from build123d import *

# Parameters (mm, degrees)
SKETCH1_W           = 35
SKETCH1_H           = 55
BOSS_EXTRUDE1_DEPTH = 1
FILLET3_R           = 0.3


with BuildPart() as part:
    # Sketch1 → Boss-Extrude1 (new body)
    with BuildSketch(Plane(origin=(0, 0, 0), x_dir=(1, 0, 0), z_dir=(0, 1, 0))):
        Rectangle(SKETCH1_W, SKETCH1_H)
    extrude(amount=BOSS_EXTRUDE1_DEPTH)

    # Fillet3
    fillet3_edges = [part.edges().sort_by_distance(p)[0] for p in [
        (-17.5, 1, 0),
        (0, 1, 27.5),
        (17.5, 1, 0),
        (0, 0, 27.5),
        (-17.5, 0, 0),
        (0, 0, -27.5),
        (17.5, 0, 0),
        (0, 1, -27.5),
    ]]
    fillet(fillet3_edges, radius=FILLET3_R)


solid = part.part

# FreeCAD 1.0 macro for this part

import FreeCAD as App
import Part
import Sketcher
from FreeCAD import Vector
Q = App.Units.Quantity


def edges_at(feature, points):
    """Names of the edges that pass closest to the given points."""
    edges = feature.Shape.Edges
    near = lambda p: min(range(len(edges)), key=lambda i: edges[i].distToShape(Part.Vertex(*p))[0])
    return sorted({f"Edge{near(p) + 1}" for p in points})

doc = App.newDocument("Part")
body = doc.addObject("PartDesign::Body", "Body")

# Sketch on XZ plane
sketch1 = body.newObject("Sketcher::SketchObject", "Sketch")
sketch1.AttachmentSupport = (doc.getObject("XZ_Plane"), [""])
sketch1.MapMode = "FlatFace"
sketch1.addGeometry([
    Part.LineSegment(Vector(-18, -28, 0), Vector(-18, 28, 0)),
    Part.LineSegment(Vector(-18, 28, 0), Vector(18, 28, 0)),
    Part.LineSegment(Vector(18, 28, 0), Vector(18, -28, 0)),
    Part.LineSegment(Vector(18, -28, 0), Vector(-18, -28, 0)),
], False)
sketch1.addConstraint([
    Sketcher.Constraint("Coincident", 0, 2, 1, 1),
    Sketcher.Constraint("Coincident", 1, 2, 2, 1),
    Sketcher.Constraint("Coincident", 2, 2, 3, 1),
    Sketcher.Constraint("Coincident", 3, 2, 0, 1),
    Sketcher.Constraint("Vertical", 0),
    Sketcher.Constraint("Horizontal", 1),
    Sketcher.Constraint("Vertical", 2),
    Sketcher.Constraint("Horizontal", 3),
    Sketcher.Constraint("Symmetric", 0, 2, 2, 2, -1, 1),
    Sketcher.Constraint("DistanceX", 1, 1, 1, 2, Q("35 mm")),
    Sketcher.Constraint("DistanceY", 0, 1, 0, 2, Q("55 mm")),
])
pad1 = body.newObject("PartDesign::Pad", "Pad")
pad1.Profile = sketch1
pad1.Length = 1
pad1.Reversed = True
doc.recompute()

fillet = body.newObject("PartDesign::Fillet", "Fillet")
fillet.Base = (pad1, edges_at(pad1, [
    (-17.5, 1, 0),
    (0, 1, 27.5),
    (17.5, 1, 0),
    (0, 0, 27.5),
    (-17.5, 0, 0),
    (0, 0, -27.5),
    (17.5, 0, 0),
    (0, 1, -27.5),
]))
fillet.Radius = 0.3

doc.recompute()
